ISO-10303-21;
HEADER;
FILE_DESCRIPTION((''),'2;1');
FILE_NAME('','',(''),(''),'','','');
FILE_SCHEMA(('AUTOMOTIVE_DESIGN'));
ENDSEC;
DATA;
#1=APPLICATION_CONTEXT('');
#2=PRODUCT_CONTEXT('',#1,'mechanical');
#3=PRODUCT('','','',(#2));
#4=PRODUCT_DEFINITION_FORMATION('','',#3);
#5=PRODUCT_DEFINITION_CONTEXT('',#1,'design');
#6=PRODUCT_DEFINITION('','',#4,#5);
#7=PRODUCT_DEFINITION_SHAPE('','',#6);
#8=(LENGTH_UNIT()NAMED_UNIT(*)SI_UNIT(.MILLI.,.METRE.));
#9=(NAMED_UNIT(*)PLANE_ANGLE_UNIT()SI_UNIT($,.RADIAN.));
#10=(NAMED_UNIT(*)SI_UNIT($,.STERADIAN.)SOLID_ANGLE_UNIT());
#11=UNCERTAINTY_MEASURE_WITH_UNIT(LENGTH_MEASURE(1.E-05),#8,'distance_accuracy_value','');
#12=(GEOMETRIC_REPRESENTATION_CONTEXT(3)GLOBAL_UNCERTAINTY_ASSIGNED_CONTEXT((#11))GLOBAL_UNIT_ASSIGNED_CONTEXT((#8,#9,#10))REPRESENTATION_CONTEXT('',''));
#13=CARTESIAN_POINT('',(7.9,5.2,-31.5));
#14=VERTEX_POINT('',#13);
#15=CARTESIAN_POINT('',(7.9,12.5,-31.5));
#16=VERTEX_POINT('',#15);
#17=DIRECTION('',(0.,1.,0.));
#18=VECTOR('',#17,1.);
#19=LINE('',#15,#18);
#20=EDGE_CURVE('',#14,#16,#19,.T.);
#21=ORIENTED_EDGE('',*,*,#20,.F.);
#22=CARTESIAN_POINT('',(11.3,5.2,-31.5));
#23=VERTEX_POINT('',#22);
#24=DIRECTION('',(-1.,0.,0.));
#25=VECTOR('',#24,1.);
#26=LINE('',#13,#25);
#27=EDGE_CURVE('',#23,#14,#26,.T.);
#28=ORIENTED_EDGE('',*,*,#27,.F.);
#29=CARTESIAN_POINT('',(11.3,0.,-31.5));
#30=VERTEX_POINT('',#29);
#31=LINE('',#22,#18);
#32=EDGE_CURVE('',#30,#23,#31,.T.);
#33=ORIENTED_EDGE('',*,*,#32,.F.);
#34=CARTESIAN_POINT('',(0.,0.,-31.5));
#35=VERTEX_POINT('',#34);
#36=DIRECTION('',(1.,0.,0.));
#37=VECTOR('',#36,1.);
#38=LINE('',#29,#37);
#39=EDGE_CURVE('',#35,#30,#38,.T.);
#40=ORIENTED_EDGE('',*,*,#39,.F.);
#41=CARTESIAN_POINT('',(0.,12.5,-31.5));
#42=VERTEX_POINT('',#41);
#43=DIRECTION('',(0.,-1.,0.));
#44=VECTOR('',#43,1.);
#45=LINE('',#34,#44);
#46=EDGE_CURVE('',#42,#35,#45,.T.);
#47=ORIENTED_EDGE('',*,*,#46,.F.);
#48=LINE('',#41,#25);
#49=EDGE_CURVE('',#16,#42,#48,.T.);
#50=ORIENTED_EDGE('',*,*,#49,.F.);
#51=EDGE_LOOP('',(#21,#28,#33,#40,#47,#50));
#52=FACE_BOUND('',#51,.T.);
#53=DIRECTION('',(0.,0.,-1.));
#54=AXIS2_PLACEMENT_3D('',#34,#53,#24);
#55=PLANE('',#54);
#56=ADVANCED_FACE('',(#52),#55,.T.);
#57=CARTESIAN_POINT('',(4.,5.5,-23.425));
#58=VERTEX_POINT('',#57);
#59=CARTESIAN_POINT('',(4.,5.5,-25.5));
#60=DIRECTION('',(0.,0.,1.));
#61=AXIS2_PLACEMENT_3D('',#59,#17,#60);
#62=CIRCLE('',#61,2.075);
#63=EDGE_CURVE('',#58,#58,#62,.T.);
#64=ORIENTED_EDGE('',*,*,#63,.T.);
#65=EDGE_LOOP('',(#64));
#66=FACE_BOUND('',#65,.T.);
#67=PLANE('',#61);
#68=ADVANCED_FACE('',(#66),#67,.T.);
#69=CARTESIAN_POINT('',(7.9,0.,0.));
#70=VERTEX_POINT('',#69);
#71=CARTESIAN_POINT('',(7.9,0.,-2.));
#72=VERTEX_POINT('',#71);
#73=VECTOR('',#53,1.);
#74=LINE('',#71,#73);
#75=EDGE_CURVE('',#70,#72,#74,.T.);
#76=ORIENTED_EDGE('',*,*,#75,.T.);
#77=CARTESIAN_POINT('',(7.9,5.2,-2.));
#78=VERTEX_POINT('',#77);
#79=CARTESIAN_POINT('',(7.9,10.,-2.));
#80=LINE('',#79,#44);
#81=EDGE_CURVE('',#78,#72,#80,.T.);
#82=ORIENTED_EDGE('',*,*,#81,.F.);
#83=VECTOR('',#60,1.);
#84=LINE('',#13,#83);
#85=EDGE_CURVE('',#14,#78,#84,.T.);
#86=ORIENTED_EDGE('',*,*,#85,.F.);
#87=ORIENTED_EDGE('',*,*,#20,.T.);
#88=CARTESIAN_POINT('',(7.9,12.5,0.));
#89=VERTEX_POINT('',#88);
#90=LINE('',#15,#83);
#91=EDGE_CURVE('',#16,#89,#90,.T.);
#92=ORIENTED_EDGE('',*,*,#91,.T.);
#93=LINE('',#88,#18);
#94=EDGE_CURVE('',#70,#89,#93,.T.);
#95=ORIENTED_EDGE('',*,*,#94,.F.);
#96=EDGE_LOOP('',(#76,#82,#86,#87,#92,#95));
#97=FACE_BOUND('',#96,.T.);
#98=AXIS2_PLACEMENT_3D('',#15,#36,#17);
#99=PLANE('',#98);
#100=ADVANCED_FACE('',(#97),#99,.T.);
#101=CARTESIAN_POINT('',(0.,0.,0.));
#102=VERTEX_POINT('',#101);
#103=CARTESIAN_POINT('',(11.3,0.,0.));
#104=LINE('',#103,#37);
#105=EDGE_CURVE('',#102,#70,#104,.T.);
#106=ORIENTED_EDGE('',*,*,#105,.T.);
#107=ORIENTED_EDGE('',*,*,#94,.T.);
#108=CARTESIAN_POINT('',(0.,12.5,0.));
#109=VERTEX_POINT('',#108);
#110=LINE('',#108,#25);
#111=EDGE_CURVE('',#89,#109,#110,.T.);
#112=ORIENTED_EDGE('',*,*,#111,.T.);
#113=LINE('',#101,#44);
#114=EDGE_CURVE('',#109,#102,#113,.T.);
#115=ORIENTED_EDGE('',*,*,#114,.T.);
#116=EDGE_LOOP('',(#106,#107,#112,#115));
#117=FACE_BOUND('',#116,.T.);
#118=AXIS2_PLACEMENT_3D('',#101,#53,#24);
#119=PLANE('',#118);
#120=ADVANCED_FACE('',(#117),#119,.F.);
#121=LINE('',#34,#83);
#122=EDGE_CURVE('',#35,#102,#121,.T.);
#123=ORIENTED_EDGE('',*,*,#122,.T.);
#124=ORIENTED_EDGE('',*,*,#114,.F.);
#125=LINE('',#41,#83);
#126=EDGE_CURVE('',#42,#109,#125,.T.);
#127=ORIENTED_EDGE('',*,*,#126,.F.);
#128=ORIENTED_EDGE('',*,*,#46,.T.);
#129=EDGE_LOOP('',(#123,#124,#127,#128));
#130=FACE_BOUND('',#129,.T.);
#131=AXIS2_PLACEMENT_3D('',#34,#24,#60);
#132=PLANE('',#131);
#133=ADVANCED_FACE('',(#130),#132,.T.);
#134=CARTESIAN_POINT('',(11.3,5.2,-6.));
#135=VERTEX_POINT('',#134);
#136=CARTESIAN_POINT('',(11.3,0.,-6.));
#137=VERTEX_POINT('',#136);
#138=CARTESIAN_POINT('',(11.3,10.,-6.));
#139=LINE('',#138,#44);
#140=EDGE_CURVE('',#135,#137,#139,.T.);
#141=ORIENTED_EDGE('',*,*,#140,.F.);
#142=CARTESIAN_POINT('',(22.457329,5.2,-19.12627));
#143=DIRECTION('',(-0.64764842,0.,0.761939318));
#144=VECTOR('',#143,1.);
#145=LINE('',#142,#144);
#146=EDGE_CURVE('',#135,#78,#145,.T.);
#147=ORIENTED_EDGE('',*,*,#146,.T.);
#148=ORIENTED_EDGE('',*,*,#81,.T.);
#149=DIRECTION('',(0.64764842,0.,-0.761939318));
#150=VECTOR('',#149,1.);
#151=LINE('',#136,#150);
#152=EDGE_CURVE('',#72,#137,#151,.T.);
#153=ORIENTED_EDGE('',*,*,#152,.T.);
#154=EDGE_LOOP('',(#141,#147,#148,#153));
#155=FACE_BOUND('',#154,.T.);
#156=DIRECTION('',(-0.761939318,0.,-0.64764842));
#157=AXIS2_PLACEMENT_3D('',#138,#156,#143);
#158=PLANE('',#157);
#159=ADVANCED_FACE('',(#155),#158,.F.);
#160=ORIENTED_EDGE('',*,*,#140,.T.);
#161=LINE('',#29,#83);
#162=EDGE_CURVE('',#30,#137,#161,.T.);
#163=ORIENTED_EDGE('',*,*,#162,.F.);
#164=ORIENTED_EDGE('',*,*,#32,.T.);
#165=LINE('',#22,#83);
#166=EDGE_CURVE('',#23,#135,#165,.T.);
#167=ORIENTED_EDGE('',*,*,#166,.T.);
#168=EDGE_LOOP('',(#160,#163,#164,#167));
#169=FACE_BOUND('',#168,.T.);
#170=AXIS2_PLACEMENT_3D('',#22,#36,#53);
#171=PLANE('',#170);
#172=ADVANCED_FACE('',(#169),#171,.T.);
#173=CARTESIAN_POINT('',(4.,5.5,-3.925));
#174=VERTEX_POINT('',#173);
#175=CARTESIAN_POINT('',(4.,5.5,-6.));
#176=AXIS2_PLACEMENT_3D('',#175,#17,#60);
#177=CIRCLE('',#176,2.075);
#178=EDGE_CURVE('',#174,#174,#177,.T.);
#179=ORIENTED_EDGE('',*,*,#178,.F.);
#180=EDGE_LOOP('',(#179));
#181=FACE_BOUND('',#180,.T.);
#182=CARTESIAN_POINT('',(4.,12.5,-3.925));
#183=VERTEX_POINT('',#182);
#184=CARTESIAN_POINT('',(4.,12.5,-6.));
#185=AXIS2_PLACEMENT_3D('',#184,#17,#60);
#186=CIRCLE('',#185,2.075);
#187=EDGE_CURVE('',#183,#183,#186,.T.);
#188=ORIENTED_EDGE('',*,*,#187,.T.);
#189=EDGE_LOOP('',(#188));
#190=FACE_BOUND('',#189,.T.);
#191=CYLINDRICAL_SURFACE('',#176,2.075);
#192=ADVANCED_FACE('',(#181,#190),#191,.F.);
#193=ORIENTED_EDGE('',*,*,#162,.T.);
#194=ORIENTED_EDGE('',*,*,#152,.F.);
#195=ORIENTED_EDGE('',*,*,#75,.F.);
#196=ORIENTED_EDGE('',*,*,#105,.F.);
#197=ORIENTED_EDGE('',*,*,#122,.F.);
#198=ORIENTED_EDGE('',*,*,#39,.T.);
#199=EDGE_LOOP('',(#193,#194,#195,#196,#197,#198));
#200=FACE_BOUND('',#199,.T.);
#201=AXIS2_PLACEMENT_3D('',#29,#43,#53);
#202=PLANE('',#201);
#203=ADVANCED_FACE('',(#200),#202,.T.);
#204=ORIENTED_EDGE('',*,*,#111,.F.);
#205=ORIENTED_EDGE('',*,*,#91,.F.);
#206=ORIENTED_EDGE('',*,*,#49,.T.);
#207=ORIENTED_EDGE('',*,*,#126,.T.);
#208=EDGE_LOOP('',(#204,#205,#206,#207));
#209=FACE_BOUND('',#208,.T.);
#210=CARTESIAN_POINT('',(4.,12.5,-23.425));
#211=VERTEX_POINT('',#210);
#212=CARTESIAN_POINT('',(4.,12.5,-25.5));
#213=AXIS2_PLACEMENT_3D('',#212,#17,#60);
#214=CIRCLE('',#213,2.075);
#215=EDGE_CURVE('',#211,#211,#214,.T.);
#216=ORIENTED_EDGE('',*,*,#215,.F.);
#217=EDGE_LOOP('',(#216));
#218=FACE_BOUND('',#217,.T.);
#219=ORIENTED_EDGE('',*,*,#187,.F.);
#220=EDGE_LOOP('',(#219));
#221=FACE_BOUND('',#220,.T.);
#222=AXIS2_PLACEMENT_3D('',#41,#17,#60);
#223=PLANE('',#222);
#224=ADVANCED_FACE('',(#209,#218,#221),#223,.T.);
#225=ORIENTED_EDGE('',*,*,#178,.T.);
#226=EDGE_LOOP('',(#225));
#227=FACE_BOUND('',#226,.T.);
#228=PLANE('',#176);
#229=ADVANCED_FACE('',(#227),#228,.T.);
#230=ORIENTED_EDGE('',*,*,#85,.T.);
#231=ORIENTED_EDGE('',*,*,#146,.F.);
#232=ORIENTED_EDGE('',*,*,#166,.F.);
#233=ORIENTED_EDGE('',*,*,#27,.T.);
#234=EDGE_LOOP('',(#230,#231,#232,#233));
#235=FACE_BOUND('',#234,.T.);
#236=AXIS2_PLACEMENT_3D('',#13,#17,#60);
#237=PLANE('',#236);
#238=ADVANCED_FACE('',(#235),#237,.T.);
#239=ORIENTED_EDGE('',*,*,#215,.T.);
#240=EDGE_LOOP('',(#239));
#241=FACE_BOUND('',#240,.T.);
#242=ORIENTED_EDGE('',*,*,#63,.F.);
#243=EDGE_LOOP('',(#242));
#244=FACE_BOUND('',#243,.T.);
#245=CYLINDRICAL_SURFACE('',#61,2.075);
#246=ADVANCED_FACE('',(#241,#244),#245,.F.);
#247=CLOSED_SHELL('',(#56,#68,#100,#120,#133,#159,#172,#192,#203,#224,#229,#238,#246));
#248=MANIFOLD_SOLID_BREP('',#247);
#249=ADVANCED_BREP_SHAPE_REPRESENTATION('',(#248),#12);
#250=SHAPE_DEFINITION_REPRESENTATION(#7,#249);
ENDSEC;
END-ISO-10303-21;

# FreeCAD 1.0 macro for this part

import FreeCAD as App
import Part
import Sketcher
Q = App.Units.Quantity

doc = App.newDocument("Part")
body = doc.addObject("PartDesign::Body", "Body")

# Sketch on XY plane
sketch1 = body.newObject("Sketcher::SketchObject", "Sketch")
sketch1.AttachmentSupport = (doc.getObject("XY_Plane"), [""])
sketch1.MapMode = "FlatFace"
sketch1.addGeometry(Part.LineSegment(App.Vector(0, 12.5, 0), App.Vector(0, 0, 0)), False)
sketch1.addGeometry(Part.LineSegment(App.Vector(0, 0, 0), App.Vector(11.3, 0, 0)), False)
sketch1.addGeometry(Part.LineSegment(App.Vector(11.3, 0, 0), App.Vector(11.3, 5.2, 0)), False)
sketch1.addGeometry(Part.LineSegment(App.Vector(11.3, 5.2, 0), App.Vector(7.9, 5.2, 0)), False)
sketch1.addGeometry(Part.LineSegment(App.Vector(7.9, 5.2, 0), App.Vector(7.9, 12.5, 0)), False)
sketch1.addGeometry(Part.LineSegment(App.Vector(7.9, 12.5, 0), App.Vector(0, 12.5, 0)), False)
sketch1.addConstraint(Sketcher.Constraint("Coincident", 0, 2, 1, 1))
sketch1.addConstraint(Sketcher.Constraint("Coincident", 1, 2, 2, 1))
sketch1.addConstraint(Sketcher.Constraint("Coincident", 2, 2, 3, 1))
sketch1.addConstraint(Sketcher.Constraint("Coincident", 3, 2, 4, 1))
sketch1.addConstraint(Sketcher.Constraint("Coincident", 4, 2, 5, 1))
sketch1.addConstraint(Sketcher.Constraint("Coincident", 5, 2, 0, 1))
sketch1.addConstraint(Sketcher.Constraint("Vertical", 0))
sketch1.addConstraint(Sketcher.Constraint("Horizontal", 1))
sketch1.addConstraint(Sketcher.Constraint("Vertical", 2))
sketch1.addConstraint(Sketcher.Constraint("Horizontal", 3))
sketch1.addConstraint(Sketcher.Constraint("Vertical", 4))
sketch1.addConstraint(Sketcher.Constraint("Horizontal", 5))
sketch1.addConstraint(Sketcher.Constraint("Coincident", 0, 2, -1, 1))
sketch1.addConstraint(Sketcher.Constraint("DistanceX", 1, 1, 1, 2, Q("11.3 mm")))
sketch1.addConstraint(Sketcher.Constraint("DistanceX", 3, 2, 3, 1, Q("3.4 mm")))
sketch1.addConstraint(Sketcher.Constraint("DistanceY", 0, 2, 0, 1, Q("12.5 mm")))
sketch1.addConstraint(Sketcher.Constraint("DistanceY", 2, 1, 2, 2, Q("5.2 mm")))
pad1 = body.newObject("PartDesign::Pad", "Pad")
pad1.Profile = sketch1
pad1.Length = 31.5
pad1.Reversed = True

# Sketch on XZ plane
sketch2 = body.newObject("Sketcher::SketchObject", "Sketch001")
sketch2.AttachmentSupport = (doc.getObject("XZ_Plane"), [""])
sketch2.MapMode = "FlatFace"
sketch2.AttachmentOffset = App.Placement(App.Vector(0, 0, -12.5), App.Rotation())
sketch2.addGeometry(Part.Circle(App.Vector(4, -6, 0), App.Vector(0, 0, 1), 2.1), False)
sketch2.addGeometry(Part.Circle(App.Vector(4, -25.5, 0), App.Vector(0, 0, 1), 2.1), False)
sketch2.addConstraint(Sketcher.Constraint("Equal", 0, 1))
sketch2.addConstraint(Sketcher.Constraint("Vertical", 0, 3, 1, 3))
sketch2.addConstraint(Sketcher.Constraint("Diameter", 0, Q("4.15 mm")))
sketch2.addConstraint(Sketcher.Constraint("DistanceX", -1, 1, 0, 3, Q("4 mm")))
sketch2.addConstraint(Sketcher.Constraint("DistanceY", 0, 3, -1, 1, Q("6 mm")))
sketch2.addConstraint(Sketcher.Constraint("DistanceY", 1, 3, -1, 1, Q("25.5 mm")))
pocket1 = body.newObject("PartDesign::Pocket", "Pocket")
pocket1.Profile = sketch2
pocket1.Length = 7
pocket1.Reversed = True

# Sketch on XZ plane
sketch3 = body.newObject("Sketcher::SketchObject", "Sketch002")
sketch3.AttachmentSupport = (doc.getObject("XZ_Plane"), [""])
sketch3.MapMode = "FlatFace"
sketch3.addGeometry(Part.LineSegment(App.Vector(7.9, 0, 0), App.Vector(7.9, -2, 0)), False)
sketch3.addGeometry(Part.LineSegment(App.Vector(7.9, -2, 0), App.Vector(11.3, -6, 0)), False)
sketch3.addGeometry(Part.LineSegment(App.Vector(11.3, -6, 0), App.Vector(11.3, 0, 0)), False)
sketch3.addGeometry(Part.LineSegment(App.Vector(11.3, 0, 0), App.Vector(7.9, 0, 0)), False)
sketch3.addConstraint(Sketcher.Constraint("Coincident", 0, 2, 1, 1))
sketch3.addConstraint(Sketcher.Constraint("Coincident", 1, 2, 2, 1))
sketch3.addConstraint(Sketcher.Constraint("Coincident", 2, 2, 3, 1))
sketch3.addConstraint(Sketcher.Constraint("Coincident", 3, 2, 0, 1))
sketch3.addConstraint(Sketcher.Constraint("Vertical", 0))
sketch3.addConstraint(Sketcher.Constraint("Vertical", 2))
sketch3.addConstraint(Sketcher.Constraint("Horizontal", 3))
sketch3.addConstraint(Sketcher.Constraint("PointOnObject", 2, 2, -1))
sketch3.addConstraint(Sketcher.Constraint("DistanceY", 0, 2, 0, 1, Q("2 mm")))
sketch3.addConstraint(Sketcher.Constraint("DistanceY", 2, 1, 2, 2, Q("6 mm")))
sketch3.addConstraint(Sketcher.Constraint("DistanceX", 3, 2, 3, 1, Q("3.4 mm")))
sketch3.addConstraint(Sketcher.Constraint("DistanceX", -1, 1, 0, 2, Q("7.9 mm")))
pocket2 = body.newObject("PartDesign::Pocket", "Pocket001")
pocket2.Profile = sketch3
pocket2.Length = 10

doc.recompute()
